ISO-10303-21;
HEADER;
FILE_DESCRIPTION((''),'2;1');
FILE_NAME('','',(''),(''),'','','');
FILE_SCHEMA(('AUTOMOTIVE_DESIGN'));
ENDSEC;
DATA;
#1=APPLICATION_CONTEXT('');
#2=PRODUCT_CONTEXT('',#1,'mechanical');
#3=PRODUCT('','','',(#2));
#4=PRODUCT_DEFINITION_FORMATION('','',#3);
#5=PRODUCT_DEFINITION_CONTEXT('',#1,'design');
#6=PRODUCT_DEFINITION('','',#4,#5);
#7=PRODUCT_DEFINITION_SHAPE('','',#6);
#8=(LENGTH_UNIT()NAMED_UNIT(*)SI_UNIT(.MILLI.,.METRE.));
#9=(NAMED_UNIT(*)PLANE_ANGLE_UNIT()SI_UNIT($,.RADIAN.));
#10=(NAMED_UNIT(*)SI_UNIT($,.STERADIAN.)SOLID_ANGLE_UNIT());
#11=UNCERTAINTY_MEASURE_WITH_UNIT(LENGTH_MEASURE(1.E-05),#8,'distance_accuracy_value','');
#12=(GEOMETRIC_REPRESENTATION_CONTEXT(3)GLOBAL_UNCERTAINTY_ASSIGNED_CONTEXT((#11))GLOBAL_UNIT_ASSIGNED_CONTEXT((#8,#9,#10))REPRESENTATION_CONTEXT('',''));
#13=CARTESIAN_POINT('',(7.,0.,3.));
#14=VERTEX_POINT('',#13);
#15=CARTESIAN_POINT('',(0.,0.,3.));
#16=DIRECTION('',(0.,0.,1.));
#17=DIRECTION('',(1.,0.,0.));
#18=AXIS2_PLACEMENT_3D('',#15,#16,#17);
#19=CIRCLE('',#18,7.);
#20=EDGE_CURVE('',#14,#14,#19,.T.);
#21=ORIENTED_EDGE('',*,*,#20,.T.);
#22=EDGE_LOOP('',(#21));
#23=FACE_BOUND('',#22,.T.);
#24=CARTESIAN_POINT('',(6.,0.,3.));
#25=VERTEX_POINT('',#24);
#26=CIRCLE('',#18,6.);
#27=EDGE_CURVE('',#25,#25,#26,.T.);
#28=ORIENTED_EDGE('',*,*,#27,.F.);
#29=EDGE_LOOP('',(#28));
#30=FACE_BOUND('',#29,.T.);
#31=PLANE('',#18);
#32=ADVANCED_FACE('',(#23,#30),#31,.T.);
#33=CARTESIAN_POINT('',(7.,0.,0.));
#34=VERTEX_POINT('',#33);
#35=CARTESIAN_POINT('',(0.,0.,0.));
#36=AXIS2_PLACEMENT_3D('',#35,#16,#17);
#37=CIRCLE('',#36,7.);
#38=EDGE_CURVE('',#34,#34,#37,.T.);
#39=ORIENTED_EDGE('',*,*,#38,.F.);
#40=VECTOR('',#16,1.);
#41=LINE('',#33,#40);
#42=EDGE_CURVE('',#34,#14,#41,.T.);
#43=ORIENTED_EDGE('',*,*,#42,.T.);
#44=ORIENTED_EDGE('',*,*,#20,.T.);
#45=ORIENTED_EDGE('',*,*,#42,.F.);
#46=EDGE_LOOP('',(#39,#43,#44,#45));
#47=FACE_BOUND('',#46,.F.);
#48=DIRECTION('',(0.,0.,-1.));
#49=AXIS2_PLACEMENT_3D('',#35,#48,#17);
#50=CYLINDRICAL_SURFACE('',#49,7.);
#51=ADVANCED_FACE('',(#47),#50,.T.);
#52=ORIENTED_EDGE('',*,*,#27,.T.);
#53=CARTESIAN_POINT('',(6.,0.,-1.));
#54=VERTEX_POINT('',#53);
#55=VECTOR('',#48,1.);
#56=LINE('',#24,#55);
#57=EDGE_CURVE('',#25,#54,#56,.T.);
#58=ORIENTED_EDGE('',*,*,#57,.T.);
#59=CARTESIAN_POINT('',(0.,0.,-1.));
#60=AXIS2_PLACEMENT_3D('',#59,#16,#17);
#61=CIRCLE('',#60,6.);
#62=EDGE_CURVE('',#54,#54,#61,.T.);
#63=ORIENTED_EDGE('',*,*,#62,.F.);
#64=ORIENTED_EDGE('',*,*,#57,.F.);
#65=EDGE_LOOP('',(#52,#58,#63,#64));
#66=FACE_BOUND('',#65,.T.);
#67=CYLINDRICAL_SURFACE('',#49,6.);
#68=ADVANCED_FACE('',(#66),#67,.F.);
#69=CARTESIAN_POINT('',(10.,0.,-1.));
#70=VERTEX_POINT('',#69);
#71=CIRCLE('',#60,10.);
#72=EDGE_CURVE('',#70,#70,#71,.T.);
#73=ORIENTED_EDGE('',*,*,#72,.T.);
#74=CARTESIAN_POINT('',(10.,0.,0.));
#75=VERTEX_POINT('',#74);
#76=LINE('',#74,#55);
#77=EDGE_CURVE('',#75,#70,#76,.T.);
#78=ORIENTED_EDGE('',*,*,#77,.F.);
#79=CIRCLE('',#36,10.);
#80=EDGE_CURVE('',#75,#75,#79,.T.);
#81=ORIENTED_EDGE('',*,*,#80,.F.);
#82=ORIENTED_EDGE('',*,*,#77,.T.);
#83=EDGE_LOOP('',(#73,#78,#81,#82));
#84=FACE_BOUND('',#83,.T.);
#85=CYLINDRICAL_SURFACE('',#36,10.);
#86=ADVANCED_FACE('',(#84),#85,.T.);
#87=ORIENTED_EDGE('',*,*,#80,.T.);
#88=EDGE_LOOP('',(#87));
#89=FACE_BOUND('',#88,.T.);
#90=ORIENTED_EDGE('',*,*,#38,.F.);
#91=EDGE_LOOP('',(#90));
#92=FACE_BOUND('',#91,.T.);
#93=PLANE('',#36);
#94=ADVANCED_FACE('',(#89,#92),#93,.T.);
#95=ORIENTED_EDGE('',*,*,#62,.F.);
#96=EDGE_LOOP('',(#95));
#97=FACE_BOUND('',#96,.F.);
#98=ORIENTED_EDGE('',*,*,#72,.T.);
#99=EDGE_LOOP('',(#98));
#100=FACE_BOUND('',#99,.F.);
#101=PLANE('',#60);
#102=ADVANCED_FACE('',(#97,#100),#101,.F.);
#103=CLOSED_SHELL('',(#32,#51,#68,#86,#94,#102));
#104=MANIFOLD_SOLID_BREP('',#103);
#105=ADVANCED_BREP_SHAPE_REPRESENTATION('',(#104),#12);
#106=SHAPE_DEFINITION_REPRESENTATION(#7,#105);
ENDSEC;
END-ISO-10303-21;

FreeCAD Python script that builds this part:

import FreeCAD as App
import Part
import Sketcher
from FreeCAD import Vector

doc = App.newDocument("Part")
body = doc.addObject("PartDesign::Body", "Body")

sketch1 = body.newObject("Sketcher::SketchObject", "Sketch")
sketch1.AttachmentSupport = (doc.getObject("XY_Plane"), [""])
sketch1.MapMode = "FlatFace"
sketch1.addGeometry([
    Part.Circle(Vector(0, 0, 0), Vector(0, 0, 1), 7),
    Part.Circle(Vector(0, 0, 0), Vector(0, 0, 1), 6),
], False)
sketch1.addConstraint([
    Sketcher.Constraint("Coincident", 0, 3, -1, 1),
    Sketcher.Constraint("Coincident", 1, 3, -1, 1),
    Sketcher.Constraint("Diameter", 0, 14.0),
    Sketcher.Constraint("Diameter", 1, 12.0),
])
pad1 = body.newObject("PartDesign::Pad", "Pad")
pad1.Profile = sketch1
pad1.Length = 3

sketch2 = body.newObject("Sketcher::SketchObject", "Sketch001")
sketch2.AttachmentSupport = (doc.getObject("XY_Plane"), [""])
sketch2.MapMode = "FlatFace"
sketch2.addGeometry([
    Part.Circle(Vector(0, 0, 0), Vector(0, 0, 1), 10),
    Part.Circle(Vector(0, 0, 0), Vector(0, 0, 1), 6),
], False)
sketch2.addConstraint([
    Sketcher.Constraint("Coincident", 0, 3, -1, 1),
    Sketcher.Constraint("Coincident", 1, 3, -1, 1),
    Sketcher.Constraint("Diameter", 0, 20.0),
    Sketcher.Constraint("Diameter", 1, 12.0),
])
pad2 = body.newObject("PartDesign::Pad", "Pad001")
pad2.Profile = sketch2
pad2.Length = 1
pad2.Reversed = True

doc.recompute()
